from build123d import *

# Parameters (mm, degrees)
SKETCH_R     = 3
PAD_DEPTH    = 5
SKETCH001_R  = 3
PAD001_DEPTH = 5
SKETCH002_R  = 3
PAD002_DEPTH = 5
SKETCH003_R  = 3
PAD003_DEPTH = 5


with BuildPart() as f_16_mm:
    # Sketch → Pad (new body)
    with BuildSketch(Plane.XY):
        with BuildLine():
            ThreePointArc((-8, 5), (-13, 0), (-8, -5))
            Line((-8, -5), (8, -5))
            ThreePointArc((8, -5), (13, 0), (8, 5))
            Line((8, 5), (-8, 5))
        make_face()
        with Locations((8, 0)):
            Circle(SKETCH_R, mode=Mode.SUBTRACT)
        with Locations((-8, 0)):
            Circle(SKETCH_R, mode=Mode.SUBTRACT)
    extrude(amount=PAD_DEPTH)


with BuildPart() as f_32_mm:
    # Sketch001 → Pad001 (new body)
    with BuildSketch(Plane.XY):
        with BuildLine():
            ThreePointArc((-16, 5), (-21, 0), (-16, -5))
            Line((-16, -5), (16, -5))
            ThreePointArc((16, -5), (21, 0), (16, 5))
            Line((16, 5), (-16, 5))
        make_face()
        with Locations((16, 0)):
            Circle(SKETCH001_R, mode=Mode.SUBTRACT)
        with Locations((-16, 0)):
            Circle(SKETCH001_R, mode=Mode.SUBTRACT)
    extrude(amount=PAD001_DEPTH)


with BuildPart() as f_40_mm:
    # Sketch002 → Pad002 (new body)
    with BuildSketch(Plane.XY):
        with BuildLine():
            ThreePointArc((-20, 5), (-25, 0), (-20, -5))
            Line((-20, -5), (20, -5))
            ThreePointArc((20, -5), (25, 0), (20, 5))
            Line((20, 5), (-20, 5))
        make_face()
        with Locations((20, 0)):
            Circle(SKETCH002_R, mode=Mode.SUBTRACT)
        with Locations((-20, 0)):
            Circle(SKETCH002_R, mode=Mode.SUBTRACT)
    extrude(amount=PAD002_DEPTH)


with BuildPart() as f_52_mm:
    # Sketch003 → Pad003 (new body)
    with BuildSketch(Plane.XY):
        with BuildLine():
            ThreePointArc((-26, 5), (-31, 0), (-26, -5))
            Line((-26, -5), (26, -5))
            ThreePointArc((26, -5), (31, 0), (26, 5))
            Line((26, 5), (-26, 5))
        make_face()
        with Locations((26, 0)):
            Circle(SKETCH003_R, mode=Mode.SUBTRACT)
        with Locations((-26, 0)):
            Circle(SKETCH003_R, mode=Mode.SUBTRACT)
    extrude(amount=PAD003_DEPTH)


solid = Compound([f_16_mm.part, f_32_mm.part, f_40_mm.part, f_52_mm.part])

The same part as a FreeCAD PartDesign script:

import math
import FreeCAD as App
import Part
import Sketcher
from FreeCAD import Vector
Q = App.Units.Quantity

doc = App.newDocument("Part")
body = doc.addObject("PartDesign::Body", "Body")

# Sketch on XY plane
sketch1 = body.newObject("Sketcher::SketchObject", "Sketch")
sketch1.AttachmentSupport = (doc.getObject("XY_Plane"), [""])
sketch1.MapMode = "FlatFace"
sketch1.addGeometry(Part.ArcOfCircle(Part.Circle(Vector(-8, 0, 0), Vector(0, 0, 1), 5), math.radians(90), math.radians(270)), False)
sketch1.addGeometry(Part.LineSegment(Vector(-8, -5, 0), Vector(8, -5, 0)), False)
sketch1.addGeometry(Part.ArcOfCircle(Part.Circle(Vector(8, 0, 0), Vector(0, 0, 1), 5), math.radians(-90), math.radians(90)), False)
sketch1.addGeometry(Part.LineSegment(Vector(8, 5, 0), Vector(-8, 5, 0)), False)
sketch1.addGeometry(Part.Circle(Vector(-8, 0, 0), Vector(0, 0, 1), 3), False)
sketch1.addGeometry(Part.Circle(Vector(8, 0, 0), Vector(0, 0, 1), 3), False)
sketch1.addConstraint(Sketcher.Constraint("Tangent", 0, 2, 1, 1))
sketch1.addConstraint(Sketcher.Constraint("Tangent", 1, 2, 2, 1))
sketch1.addConstraint(Sketcher.Constraint("Tangent", 2, 2, 3, 1))
sketch1.addConstraint(Sketcher.Constraint("Tangent", 3, 2, 0, 1))
sketch1.addConstraint(Sketcher.Constraint("Horizontal", 1))
sketch1.addConstraint(Sketcher.Constraint("Horizontal", 3))
sketch1.addConstraint(Sketcher.Constraint("Coincident", 4, 3, 0, 3))
sketch1.addConstraint(Sketcher.Constraint("Coincident", 5, 3, 2, 3))
sketch1.addConstraint(Sketcher.Constraint("Equal", 4, 5))
sketch1.addConstraint(Sketcher.Constraint("Symmetric", 0, 3, 2, 3, -1, 1))
sketch1.addConstraint(Sketcher.Constraint("Diameter", 4, Q("6 mm")))
sketch1.addConstraint(Sketcher.Constraint("Radius", 0, Q("5 mm")))
sketch1.addConstraint(Sketcher.Constraint("DistanceX", 1, 1, 1, 2, Q("16 mm")))
pad1 = body.newObject("PartDesign::Pad", "Pad")
pad1.Profile = sketch1
pad1.Length = 5
body2 = doc.addObject("PartDesign::Body", "Body001")

# Sketch on XY plane
sketch2 = body2.newObject("Sketcher::SketchObject", "Sketch001")
sketch2.AttachmentSupport = (doc.getObject("XY_Plane001"), [""])
sketch2.MapMode = "FlatFace"
sketch2.addGeometry(Part.ArcOfCircle(Part.Circle(Vector(-16, 0, 0), Vector(0, 0, 1), 5), math.radians(90), math.radians(270)), False)
sketch2.addGeometry(Part.LineSegment(Vector(-16, -5, 0), Vector(16, -5, 0)), False)
sketch2.addGeometry(Part.ArcOfCircle(Part.Circle(Vector(16, 0, 0), Vector(0, 0, 1), 5), math.radians(-90), math.radians(90)), False)
sketch2.addGeometry(Part.LineSegment(Vector(16, 5, 0), Vector(-16, 5, 0)), False)
sketch2.addGeometry(Part.Circle(Vector(-16, 0, 0), Vector(0, 0, 1), 3), False)
sketch2.addGeometry(Part.Circle(Vector(16, 0, 0), Vector(0, 0, 1), 3), False)
sketch2.addConstraint(Sketcher.Constraint("Tangent", 0, 2, 1, 1))
sketch2.addConstraint(Sketcher.Constraint("Tangent", 1, 2, 2, 1))
sketch2.addConstraint(Sketcher.Constraint("Tangent", 2, 2, 3, 1))
sketch2.addConstraint(Sketcher.Constraint("Tangent", 3, 2, 0, 1))
sketch2.addConstraint(Sketcher.Constraint("Horizontal", 1))
sketch2.addConstraint(Sketcher.Constraint("Horizontal", 3))
sketch2.addConstraint(Sketcher.Constraint("Coincident", 4, 3, 0, 3))
sketch2.addConstraint(Sketcher.Constraint("Coincident", 5, 3, 2, 3))
sketch2.addConstraint(Sketcher.Constraint("Equal", 4, 5))
sketch2.addConstraint(Sketcher.Constraint("Symmetric", 0, 3, 2, 3, -1, 1))
sketch2.addConstraint(Sketcher.Constraint("Diameter", 4, Q("6 mm")))
sketch2.addConstraint(Sketcher.Constraint("Radius", 0, Q("5 mm")))
sketch2.addConstraint(Sketcher.Constraint("DistanceX", 1, 1, 1, 2, Q("32 mm")))
pad2 = body2.newObject("PartDesign::Pad", "Pad001")
pad2.Profile = sketch2
pad2.Length = 5
body3 = doc.addObject("PartDesign::Body", "Body002")

# Sketch on XY plane
sketch3 = body3.newObject("Sketcher::SketchObject", "Sketch002")
sketch3.AttachmentSupport = (doc.getObject("XY_Plane002"), [""])
sketch3.MapMode = "FlatFace"
sketch3.addGeometry(Part.ArcOfCircle(Part.Circle(Vector(-20, 0, 0), Vector(0, 0, 1), 5), math.radians(90), math.radians(270)), False)
sketch3.addGeometry(Part.LineSegment(Vector(-20, -5, 0), Vector(20, -5, 0)), False)
sketch3.addGeometry(Part.ArcOfCircle(Part.Circle(Vector(20, 0, 0), Vector(0, 0, 1), 5), math.radians(-90), math.radians(90)), False)
sketch3.addGeometry(Part.LineSegment(Vector(20, 5, 0), Vector(-20, 5, 0)), False)
sketch3.addGeometry(Part.Circle(Vector(-20, 0, 0), Vector(0, 0, 1), 3), False)
sketch3.addGeometry(Part.Circle(Vector(20, 0, 0), Vector(0, 0, 1), 3), False)
sketch3.addConstraint(Sketcher.Constraint("Tangent", 0, 2, 1, 1))
sketch3.addConstraint(Sketcher.Constraint("Tangent", 1, 2, 2, 1))
sketch3.addConstraint(Sketcher.Constraint("Tangent", 2, 2, 3, 1))
sketch3.addConstraint(Sketcher.Constraint("Tangent", 3, 2, 0, 1))
sketch3.addConstraint(Sketcher.Constraint("Horizontal", 1))
sketch3.addConstraint(Sketcher.Constraint("Horizontal", 3))
sketch3.addConstraint(Sketcher.Constraint("Coincident", 4, 3, 0, 3))
sketch3.addConstraint(Sketcher.Constraint("Coincident", 5, 3, 2, 3))
sketch3.addConstraint(Sketcher.Constraint("Equal", 4, 5))
sketch3.addConstraint(Sketcher.Constraint("Symmetric", 0, 3, 2, 3, -1, 1))
sketch3.addConstraint(Sketcher.Constraint("Diameter", 4, Q("6 mm")))
sketch3.addConstraint(Sketcher.Constraint("Radius", 0, Q("5 mm")))
sketch3.addConstraint(Sketcher.Constraint("DistanceX", 1, 1, 1, 2, Q("40 mm")))
pad3 = body3.newObject("PartDesign::Pad", "Pad002")
pad3.Profile = sketch3
pad3.Length = 5
body4 = doc.addObject("PartDesign::Body", "Body003")

# Sketch on XY plane
sketch4 = body4.newObject("Sketcher::SketchObject", "Sketch003")
sketch4.AttachmentSupport = (doc.getObject("XY_Plane003"), [""])
sketch4.MapMode = "FlatFace"
sketch4.addGeometry(Part.ArcOfCircle(Part.Circle(Vector(-26, 0, 0), Vector(0, 0, 1), 5), math.radians(90), math.radians(270)), False)
sketch4.addGeometry(Part.LineSegment(Vector(-26, -5, 0), Vector(26, -5, 0)), False)
sketch4.addGeometry(Part.ArcOfCircle(Part.Circle(Vector(26, 0, 0), Vector(0, 0, 1), 5), math.radians(-90), math.radians(90)), False)
sketch4.addGeometry(Part.LineSegment(Vector(26, 5, 0), Vector(-26, 5, 0)), False)
sketch4.addGeometry(Part.Circle(Vector(-26, 0, 0), Vector(0, 0, 1), 3), False)
sketch4.addGeometry(Part.Circle(Vector(26, 0, 0), Vector(0, 0, 1), 3), False)
sketch4.addConstraint(Sketcher.Constraint("Tangent", 0, 2, 1, 1))
sketch4.addConstraint(Sketcher.Constraint("Tangent", 1, 2, 2, 1))
sketch4.addConstraint(Sketcher.Constraint("Tangent", 2, 2, 3, 1))
sketch4.addConstraint(Sketcher.Constraint("Tangent", 3, 2, 0, 1))
sketch4.addConstraint(Sketcher.Constraint("Horizontal", 1))
sketch4.addConstraint(Sketcher.Constraint("Horizontal", 3))
sketch4.addConstraint(Sketcher.Constraint("Coincident", 4, 3, 0, 3))
sketch4.addConstraint(Sketcher.Constraint("Coincident", 5, 3, 2, 3))
sketch4.addConstraint(Sketcher.Constraint("Equal", 4, 5))
sketch4.addConstraint(Sketcher.Constraint("Symmetric", 0, 3, 2, 3, -1, 1))
sketch4.addConstraint(Sketcher.Constraint("Diameter", 4, Q("6 mm")))
sketch4.addConstraint(Sketcher.Constraint("Radius", 0, Q("5 mm")))
sketch4.addConstraint(Sketcher.Constraint("DistanceX", 1, 1, 1, 2, Q("52 mm")))
pad4 = body4.newObject("PartDesign::Pad", "Pad003")
pad4.Profile = sketch4
pad4.Length = 5

doc.recompute()
